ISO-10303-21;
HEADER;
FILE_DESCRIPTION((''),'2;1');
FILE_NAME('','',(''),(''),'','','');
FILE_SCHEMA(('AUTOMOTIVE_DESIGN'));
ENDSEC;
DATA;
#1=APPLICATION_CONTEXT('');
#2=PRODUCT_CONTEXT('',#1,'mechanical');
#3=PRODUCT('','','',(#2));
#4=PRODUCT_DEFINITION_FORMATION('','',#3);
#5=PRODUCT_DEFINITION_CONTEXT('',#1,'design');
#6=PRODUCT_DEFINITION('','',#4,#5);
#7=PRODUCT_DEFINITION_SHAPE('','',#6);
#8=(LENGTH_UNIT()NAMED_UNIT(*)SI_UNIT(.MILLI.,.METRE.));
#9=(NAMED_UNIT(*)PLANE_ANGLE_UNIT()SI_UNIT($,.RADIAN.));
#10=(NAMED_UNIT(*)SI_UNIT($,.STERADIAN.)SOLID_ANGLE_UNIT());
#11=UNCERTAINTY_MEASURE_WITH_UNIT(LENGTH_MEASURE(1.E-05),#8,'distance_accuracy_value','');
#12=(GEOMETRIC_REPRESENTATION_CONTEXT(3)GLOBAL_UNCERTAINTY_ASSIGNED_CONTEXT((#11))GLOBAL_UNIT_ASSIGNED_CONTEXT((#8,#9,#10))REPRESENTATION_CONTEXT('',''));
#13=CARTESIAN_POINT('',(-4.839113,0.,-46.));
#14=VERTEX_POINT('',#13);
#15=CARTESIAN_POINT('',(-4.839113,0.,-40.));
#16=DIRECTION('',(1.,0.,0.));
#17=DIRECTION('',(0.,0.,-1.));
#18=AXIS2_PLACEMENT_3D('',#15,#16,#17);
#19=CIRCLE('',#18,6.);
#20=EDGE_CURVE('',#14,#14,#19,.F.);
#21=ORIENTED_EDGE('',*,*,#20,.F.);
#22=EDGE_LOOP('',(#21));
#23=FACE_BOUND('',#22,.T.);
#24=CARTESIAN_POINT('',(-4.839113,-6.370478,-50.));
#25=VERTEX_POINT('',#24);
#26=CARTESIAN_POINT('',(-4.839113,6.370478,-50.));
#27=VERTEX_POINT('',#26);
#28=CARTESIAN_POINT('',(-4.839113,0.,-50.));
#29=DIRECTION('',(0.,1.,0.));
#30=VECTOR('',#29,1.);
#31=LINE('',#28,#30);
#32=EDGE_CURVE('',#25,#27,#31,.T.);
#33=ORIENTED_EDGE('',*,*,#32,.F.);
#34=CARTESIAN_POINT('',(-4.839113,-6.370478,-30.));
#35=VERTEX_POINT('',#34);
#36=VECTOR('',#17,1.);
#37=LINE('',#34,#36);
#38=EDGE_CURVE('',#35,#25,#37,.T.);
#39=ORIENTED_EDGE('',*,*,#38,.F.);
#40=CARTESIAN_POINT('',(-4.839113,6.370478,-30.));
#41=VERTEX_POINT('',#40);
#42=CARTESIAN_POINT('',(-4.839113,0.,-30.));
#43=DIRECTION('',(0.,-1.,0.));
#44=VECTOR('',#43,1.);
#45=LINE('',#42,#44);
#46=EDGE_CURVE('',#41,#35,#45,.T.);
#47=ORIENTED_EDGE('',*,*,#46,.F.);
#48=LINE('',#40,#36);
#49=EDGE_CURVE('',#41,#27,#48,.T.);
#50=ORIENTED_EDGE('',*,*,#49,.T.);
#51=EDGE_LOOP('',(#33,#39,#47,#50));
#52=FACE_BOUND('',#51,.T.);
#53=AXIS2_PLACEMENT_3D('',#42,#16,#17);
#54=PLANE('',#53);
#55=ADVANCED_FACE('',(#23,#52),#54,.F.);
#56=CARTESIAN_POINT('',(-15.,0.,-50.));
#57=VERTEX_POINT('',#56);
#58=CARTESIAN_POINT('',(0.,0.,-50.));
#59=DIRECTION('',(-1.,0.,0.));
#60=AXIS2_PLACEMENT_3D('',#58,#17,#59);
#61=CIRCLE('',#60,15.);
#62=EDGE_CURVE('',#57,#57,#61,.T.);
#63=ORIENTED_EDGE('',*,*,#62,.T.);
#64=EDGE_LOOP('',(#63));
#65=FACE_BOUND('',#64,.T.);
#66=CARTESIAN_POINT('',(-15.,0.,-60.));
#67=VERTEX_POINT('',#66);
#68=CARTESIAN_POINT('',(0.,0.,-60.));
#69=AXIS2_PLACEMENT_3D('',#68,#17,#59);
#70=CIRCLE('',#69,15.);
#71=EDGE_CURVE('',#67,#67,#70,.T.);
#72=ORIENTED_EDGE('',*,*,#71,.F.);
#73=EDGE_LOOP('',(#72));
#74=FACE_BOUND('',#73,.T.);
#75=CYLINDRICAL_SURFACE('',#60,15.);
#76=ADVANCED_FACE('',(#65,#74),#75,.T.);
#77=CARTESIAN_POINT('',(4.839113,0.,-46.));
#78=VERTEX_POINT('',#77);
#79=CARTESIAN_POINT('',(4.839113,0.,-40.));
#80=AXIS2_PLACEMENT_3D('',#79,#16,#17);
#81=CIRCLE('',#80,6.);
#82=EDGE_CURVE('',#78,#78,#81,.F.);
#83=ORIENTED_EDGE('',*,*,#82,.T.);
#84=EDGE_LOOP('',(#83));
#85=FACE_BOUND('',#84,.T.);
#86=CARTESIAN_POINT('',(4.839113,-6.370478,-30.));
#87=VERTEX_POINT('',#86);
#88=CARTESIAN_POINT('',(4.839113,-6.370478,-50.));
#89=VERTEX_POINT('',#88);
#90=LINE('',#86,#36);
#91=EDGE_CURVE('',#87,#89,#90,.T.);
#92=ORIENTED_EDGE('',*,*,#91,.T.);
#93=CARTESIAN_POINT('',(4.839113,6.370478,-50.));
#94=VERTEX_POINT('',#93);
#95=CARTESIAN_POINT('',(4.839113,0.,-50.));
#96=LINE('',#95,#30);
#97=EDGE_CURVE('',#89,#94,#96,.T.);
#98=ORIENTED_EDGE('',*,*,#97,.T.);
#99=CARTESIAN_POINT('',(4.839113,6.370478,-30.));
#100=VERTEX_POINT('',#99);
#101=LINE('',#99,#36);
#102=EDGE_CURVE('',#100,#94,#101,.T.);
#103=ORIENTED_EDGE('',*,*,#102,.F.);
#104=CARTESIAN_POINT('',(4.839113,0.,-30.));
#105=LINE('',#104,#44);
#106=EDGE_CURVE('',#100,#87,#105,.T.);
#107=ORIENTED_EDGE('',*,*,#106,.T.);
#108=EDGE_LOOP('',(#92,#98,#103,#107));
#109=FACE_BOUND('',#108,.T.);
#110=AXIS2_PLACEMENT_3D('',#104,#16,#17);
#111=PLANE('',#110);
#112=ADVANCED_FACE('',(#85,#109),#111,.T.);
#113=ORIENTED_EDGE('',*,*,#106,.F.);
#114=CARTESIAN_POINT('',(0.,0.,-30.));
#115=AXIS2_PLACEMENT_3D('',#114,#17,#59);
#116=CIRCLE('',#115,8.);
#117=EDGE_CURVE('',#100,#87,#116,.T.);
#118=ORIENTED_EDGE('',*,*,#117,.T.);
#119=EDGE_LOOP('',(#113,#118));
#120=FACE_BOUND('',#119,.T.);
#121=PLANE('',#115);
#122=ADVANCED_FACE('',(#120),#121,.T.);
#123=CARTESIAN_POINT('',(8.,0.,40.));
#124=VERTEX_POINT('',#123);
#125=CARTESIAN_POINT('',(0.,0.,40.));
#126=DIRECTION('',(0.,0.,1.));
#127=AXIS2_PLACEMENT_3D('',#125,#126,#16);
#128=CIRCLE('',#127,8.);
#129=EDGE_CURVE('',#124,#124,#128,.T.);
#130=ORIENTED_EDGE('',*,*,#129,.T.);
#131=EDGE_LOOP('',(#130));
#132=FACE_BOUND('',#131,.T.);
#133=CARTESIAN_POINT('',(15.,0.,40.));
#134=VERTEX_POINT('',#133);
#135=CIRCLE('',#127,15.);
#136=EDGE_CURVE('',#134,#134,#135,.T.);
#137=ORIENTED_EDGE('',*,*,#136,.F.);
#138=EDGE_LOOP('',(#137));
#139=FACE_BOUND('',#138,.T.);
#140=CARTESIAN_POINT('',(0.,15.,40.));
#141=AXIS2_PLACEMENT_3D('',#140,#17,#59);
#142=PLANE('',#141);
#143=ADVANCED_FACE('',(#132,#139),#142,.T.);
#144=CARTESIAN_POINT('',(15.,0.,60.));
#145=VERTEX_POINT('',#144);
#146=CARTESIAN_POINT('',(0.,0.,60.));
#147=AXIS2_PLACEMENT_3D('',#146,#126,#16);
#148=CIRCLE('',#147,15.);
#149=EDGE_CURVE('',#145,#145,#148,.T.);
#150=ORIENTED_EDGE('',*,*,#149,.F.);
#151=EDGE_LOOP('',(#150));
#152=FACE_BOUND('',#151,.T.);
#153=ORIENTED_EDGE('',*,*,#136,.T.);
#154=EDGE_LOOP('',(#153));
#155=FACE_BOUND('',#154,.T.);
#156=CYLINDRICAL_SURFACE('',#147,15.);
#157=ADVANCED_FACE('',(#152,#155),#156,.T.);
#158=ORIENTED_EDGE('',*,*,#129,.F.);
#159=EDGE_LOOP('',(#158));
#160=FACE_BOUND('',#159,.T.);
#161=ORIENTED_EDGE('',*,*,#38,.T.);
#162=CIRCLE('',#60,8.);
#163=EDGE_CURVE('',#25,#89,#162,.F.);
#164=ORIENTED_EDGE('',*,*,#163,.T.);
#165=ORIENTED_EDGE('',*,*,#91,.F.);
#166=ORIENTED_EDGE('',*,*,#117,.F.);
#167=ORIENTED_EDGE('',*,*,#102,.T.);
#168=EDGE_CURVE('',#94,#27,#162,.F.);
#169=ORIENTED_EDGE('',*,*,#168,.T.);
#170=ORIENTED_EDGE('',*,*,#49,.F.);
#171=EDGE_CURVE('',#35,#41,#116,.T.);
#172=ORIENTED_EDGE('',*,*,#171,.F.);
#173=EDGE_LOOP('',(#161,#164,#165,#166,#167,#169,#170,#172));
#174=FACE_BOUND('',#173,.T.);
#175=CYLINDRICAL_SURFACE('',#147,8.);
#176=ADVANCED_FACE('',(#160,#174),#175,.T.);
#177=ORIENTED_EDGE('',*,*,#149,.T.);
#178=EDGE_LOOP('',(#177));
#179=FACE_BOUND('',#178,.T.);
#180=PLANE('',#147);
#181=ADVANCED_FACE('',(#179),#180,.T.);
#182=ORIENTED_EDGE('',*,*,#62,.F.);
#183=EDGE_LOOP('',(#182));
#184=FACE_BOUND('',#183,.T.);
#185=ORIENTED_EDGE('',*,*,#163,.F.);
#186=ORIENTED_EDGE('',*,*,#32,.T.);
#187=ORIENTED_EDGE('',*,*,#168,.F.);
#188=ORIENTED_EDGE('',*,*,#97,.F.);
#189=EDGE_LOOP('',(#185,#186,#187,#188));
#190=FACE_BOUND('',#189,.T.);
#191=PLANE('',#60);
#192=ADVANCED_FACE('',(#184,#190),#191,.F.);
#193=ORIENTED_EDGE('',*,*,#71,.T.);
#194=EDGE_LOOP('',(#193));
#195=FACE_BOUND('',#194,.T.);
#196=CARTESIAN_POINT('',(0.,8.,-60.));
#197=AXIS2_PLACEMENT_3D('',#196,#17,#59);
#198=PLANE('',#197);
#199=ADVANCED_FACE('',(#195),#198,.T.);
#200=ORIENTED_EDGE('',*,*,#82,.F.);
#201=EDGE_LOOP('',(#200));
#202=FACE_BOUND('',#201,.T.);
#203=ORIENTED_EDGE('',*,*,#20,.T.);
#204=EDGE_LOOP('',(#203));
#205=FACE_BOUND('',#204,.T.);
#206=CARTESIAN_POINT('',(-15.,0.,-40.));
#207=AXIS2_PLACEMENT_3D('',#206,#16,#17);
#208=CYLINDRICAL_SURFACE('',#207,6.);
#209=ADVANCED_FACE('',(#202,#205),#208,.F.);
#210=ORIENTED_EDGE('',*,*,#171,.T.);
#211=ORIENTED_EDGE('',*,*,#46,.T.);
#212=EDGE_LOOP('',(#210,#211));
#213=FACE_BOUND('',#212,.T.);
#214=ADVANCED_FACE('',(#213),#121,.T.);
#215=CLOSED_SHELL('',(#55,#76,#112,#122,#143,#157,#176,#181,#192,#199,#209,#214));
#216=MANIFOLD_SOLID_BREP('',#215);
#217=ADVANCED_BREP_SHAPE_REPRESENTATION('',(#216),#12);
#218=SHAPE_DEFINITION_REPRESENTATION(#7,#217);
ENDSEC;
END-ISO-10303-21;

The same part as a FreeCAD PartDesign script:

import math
import FreeCAD as App
import Part
import Sketcher
from FreeCAD import Vector

doc = App.newDocument("Part")
body = doc.addObject("PartDesign::Body", "Body")

# Sketch on YZ plane
sketch1 = doc.addObject("Sketcher::SketchObject", "Sketch")
body.addObject(sketch1)
sketch1.AttachmentSupport = (doc.YZ_Plane, [""])
sketch1.MapMode = "FlatFace"
sketch1.addGeometry(Part.LineSegment(Vector(0, 60, 0), Vector(0, -60, 0)), False)
sketch1.addGeometry(Part.LineSegment(Vector(0, -60, 0), Vector(8, -60, 0)), False)
sketch1.addGeometry(Part.LineSegment(Vector(8, -60, 0), Vector(8, 40, 0)), False)
sketch1.addGeometry(Part.LineSegment(Vector(8, 40, 0), Vector(15, 40, 0)), False)
sketch1.addGeometry(Part.LineSegment(Vector(15, 40, 0), Vector(15, 60, 0)), False)
sketch1.addGeometry(Part.LineSegment(Vector(15, 60, 0), Vector(0, 60, 0)), False)
sketch1.addConstraint(Sketcher.Constraint("Coincident", 0, 2, 1, 1))
sketch1.addConstraint(Sketcher.Constraint("Coincident", 1, 2, 2, 1))
sketch1.addConstraint(Sketcher.Constraint("Coincident", 2, 2, 3, 1))
sketch1.addConstraint(Sketcher.Constraint("Coincident", 3, 2, 4, 1))
sketch1.addConstraint(Sketcher.Constraint("Coincident", 4, 2, 5, 1))
sketch1.addConstraint(Sketcher.Constraint("Coincident", 5, 2, 0, 1))
sketch1.addConstraint(Sketcher.Constraint("Vertical", 0))
sketch1.addConstraint(Sketcher.Constraint("Horizontal", 1))
sketch1.addConstraint(Sketcher.Constraint("Vertical", 2))
sketch1.addConstraint(Sketcher.Constraint("Horizontal", 3))
sketch1.addConstraint(Sketcher.Constraint("Vertical", 4))
sketch1.addConstraint(Sketcher.Constraint("Horizontal", 5))
sketch1.addConstraint(Sketcher.Constraint("Symmetric", 0, 2, 5, 2, -1, 1))
sketch1.addConstraint(Sketcher.Constraint("DistanceX", 1, 1, 1, 2, 8.0))
sketch1.addConstraint(Sketcher.Constraint("DistanceX", 3, 1, 3, 2, 7.0))
sketch1.addConstraint(Sketcher.Constraint("DistanceY", 0, 2, 0, 1, 120.0))
sketch1.addConstraint(Sketcher.Constraint("DistanceY", 2, 1, 2, 2, 100.0))
revolution = doc.addObject("PartDesign::Revolution", "Revolution")
body.addObject(revolution)
revolution.Profile = sketch1
revolution.ReferenceAxis = (sketch1, ["V_Axis"])
revolution.Angle = 360

# Sketch on YZ plane
sketch2 = doc.addObject("Sketcher::SketchObject", "Sketch001")
body.addObject(sketch2)
sketch2.AttachmentSupport = (doc.YZ_Plane, [""])
sketch2.MapMode = "FlatFace"
sketch2.addGeometry(Part.Circle(Vector(0, -40, 0), Vector(0, 0, 1), 6), False)
sketch2.addConstraint(Sketcher.Constraint("PointOnObject", 0, 3, -2))
sketch2.addConstraint(Sketcher.Constraint("Diameter", 0, 12.0))
sketch2.addConstraint(Sketcher.Constraint("DistanceY", 0, 3, -1, 1, 40.0))
pocket1 = doc.addObject("PartDesign::Pocket", "Pocket")
body.addObject(pocket1)
pocket1.Profile = sketch2
pocket1.Type = "ThroughAll"
pocket1.Midplane = True

# Sketch on XY plane
sketch3 = doc.addObject("Sketcher::SketchObject", "Sketch002")
body.addObject(sketch3)
sketch3.AttachmentSupport = (doc.XY_Plane, [""])
sketch3.MapMode = "FlatFace"
sketch3.AttachmentOffset = App.Placement(Vector(0, 0, -30), App.Rotation())
sketch3.addGeometry(Part.LineSegment(Vector(5, -6, 0), Vector(5, 6, 0)), False)
sketch3.addGeometry(Part.ArcOfCircle(Part.Circle(Vector(0, 0, 0), Vector(0, 0, 1), 8), math.radians(-53), math.radians(53)), False)
sketch3.addGeometry(Part.ArcOfCircle(Part.Circle(Vector(0, 0, 0), Vector(0, 0, 1), 8), math.radians(127), math.radians(180)), False)
sketch3.addGeometry(Part.LineSegment(Vector(-5, 6, 0), Vector(-5, -6, 0)), False)
sketch3.addGeometry(Part.ArcOfCircle(Part.Circle(Vector(0, 0, 0), Vector(0, 0, 1), 8), math.radians(180), math.radians(233)), False)
sketch3.addConstraint(Sketcher.Constraint("Coincident", 0, 1, 1, 1))
sketch3.addConstraint(Sketcher.Constraint("Coincident", 1, 2, 0, 2))
sketch3.addConstraint(Sketcher.Constraint("Coincident", 2, 1, 3, 1))
sketch3.addConstraint(Sketcher.Constraint("Coincident", 3, 2, 4, 2))
sketch3.addConstraint(Sketcher.Constraint("Tangent", 4, 1, 2, 2))
sketch3.addConstraint(Sketcher.Constraint("Vertical", 0))
sketch3.addConstraint(Sketcher.Constraint("Vertical", 3))
sketch3.addConstraint(Sketcher.Constraint("Coincident", 1, 3, -1, 1))
sketch3.addConstraint(Sketcher.Constraint("Coincident", 2, 3, -1, 1))
sketch3.addConstraint(Sketcher.Constraint("Equal", 1, 2))
sketch3.addConstraint(Sketcher.Constraint("Equal", 2, 4))
sketch3.addConstraint(Sketcher.Constraint("PointOnObject", 4, 1, -1))
sketch3.addConstraint(Sketcher.Constraint("Horizontal", 1, 2, 2, 1))
sketch3.addConstraint(Sketcher.Constraint("Radius", 1, 8.0))
sketch3.addConstraint(Sketcher.Constraint("DistanceY", 0, 1, 0, 2, 12.740955))
pocket2 = doc.addObject("PartDesign::Pocket", "Pocket001")
body.addObject(pocket2)
pocket2.Profile = sketch3
pocket2.Length = 30

# Sketch on XY plane
sketch4 = doc.addObject("Sketcher::SketchObject", "Sketch003")
body.addObject(sketch4)
sketch4.AttachmentSupport = (doc.XY_Plane, [""])
sketch4.MapMode = "FlatFace"
sketch4.AttachmentOffset = App.Placement(Vector(0, 0, -50), App.Rotation())
sketch4.addGeometry(Part.Circle(Vector(0, 0, 0), Vector(0, 0, 1), 15), False)
sketch4.addConstraint(Sketcher.Constraint("Coincident", 0, 3, -1, 1))
sketch4.addConstraint(Sketcher.Constraint("Diameter", 0, 30.0))
pad1 = doc.addObject("PartDesign::Pad", "Pad")
body.addObject(pad1)
pad1.Profile = sketch4
pad1.Length = 10
pad1.Reversed = True

doc.recompute()
